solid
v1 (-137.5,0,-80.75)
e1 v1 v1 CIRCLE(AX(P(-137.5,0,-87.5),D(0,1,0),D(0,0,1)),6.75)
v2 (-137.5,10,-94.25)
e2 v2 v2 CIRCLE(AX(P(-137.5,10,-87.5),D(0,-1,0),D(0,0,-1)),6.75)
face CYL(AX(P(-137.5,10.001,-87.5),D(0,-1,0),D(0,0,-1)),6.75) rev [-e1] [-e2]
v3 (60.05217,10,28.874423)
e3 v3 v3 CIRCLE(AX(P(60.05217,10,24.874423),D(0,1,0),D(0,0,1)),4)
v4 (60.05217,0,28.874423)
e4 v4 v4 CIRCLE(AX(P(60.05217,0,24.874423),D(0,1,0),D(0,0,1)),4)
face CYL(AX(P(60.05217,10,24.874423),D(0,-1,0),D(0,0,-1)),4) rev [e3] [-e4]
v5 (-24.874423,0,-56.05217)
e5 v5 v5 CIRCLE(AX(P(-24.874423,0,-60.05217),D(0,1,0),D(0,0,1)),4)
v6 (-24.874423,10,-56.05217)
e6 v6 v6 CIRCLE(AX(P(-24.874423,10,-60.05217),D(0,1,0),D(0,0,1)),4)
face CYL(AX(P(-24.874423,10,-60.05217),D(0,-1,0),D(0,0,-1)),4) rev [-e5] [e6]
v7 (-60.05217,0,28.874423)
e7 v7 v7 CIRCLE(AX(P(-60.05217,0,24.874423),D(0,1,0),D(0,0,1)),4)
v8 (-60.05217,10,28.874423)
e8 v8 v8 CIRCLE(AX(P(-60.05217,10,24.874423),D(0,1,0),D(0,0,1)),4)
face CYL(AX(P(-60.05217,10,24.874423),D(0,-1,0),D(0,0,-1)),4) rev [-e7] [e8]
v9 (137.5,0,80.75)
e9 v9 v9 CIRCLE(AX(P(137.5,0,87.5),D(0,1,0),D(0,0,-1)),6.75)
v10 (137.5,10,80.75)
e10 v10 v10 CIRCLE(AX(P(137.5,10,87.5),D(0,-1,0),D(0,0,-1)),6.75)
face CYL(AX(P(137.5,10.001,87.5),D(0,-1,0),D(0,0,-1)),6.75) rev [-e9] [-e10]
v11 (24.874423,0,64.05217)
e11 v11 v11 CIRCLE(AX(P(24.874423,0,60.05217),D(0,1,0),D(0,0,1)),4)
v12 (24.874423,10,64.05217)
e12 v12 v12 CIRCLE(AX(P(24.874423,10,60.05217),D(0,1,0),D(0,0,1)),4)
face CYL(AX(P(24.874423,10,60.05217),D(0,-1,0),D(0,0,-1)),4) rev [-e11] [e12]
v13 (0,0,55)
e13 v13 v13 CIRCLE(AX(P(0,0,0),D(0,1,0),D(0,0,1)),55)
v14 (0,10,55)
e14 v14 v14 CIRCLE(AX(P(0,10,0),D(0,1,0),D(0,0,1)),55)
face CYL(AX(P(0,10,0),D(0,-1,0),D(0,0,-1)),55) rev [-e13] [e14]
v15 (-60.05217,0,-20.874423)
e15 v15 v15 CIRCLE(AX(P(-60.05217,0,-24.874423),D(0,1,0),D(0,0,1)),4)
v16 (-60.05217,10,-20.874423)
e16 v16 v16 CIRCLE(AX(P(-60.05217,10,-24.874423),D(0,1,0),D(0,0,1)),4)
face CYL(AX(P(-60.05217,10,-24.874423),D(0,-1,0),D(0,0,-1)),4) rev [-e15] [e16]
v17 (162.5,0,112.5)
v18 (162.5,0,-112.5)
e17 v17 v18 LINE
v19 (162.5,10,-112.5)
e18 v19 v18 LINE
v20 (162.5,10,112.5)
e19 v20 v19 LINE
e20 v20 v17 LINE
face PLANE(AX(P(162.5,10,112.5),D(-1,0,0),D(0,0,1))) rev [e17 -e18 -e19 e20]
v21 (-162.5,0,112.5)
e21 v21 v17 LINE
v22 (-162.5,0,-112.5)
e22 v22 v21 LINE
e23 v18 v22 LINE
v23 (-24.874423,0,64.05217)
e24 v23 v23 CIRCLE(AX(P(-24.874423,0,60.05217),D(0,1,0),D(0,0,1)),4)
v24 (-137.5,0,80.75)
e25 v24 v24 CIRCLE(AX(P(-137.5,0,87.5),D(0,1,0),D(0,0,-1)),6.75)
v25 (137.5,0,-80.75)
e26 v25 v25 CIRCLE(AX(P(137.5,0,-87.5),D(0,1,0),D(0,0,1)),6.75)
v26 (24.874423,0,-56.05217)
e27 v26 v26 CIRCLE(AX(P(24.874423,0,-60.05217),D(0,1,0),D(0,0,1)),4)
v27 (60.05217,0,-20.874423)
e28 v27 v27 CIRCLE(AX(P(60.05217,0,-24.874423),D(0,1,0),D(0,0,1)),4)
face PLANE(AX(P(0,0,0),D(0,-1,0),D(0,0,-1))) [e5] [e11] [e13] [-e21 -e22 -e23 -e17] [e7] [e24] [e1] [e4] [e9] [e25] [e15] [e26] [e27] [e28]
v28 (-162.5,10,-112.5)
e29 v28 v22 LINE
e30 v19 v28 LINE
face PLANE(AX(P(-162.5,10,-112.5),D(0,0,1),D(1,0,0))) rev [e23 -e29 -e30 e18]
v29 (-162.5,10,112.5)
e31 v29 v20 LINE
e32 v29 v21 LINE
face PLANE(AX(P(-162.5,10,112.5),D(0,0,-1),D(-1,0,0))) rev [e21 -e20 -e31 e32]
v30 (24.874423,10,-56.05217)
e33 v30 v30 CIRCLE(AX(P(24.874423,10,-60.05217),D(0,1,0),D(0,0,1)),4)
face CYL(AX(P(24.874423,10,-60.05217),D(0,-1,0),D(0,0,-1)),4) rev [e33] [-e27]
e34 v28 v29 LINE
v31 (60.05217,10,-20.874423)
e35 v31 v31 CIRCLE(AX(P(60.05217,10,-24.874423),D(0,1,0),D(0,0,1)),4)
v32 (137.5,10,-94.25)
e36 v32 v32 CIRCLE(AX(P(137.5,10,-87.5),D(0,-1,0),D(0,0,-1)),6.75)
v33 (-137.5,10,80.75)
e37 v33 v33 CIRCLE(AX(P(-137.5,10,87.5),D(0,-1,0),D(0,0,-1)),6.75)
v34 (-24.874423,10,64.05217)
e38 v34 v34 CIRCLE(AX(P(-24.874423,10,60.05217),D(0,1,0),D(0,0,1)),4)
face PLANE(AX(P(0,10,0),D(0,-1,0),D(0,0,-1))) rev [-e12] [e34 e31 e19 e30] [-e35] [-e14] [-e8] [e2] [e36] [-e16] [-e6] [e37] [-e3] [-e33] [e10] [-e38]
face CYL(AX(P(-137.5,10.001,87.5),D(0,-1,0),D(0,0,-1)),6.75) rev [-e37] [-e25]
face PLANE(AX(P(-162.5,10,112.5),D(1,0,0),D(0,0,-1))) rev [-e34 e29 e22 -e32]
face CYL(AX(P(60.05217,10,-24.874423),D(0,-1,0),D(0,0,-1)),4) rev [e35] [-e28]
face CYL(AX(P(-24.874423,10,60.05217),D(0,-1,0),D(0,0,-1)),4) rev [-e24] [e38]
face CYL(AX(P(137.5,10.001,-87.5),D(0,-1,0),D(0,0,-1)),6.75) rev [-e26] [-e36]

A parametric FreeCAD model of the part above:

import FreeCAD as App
import Part
import Sketcher

V = App.Vector
Q = App.Units.Quantity


def add_polygon(sketch, points):
    """Adds a closed chain of lines whose ends are joined by coincident constraints."""
    first, n = sketch.GeometryCount, len(points)
    for a, b in zip(points, points[1:] + points[:1]):
        sketch.addGeometry(Part.LineSegment(App.Vector(*a, 0), App.Vector(*b, 0)), False)
    for i in range(n):
        sketch.addConstraint(Sketcher.Constraint("Coincident", first + i, 2, first + (i + 1) % n, 1))

doc = App.newDocument("Part")
params = doc.addObject("Spreadsheet::Sheet", "Params")
for row, (alias, value) in enumerate([
    ("sketch1_diameter", "110 mm"),
    ("sketch1_width", "325 mm"),
    ("sketch1_height", "225 mm"),
    ("pad1_length", "10 mm"),
    ("sketch2_diameter", "8 mm"),
    ("pocket1_length", "10 mm"),
    ("sketch3_diameter", "13.5 mm"),
    ("sketch4_diameter", "13.5 mm"),
    ("sketch5_diameter", "13.5 mm"),
    ("sketch6_diameter", "13.5 mm"),
], start=1):
    params.set(f"A{row}", alias)
    params.set(f"B{row}", "=" + value)
    params.setAlias(f"B{row}", alias)

body = doc.addObject("PartDesign::Body", "Body")

# Sketch on XZ plane
sketch1 = doc.addObject("Sketcher::SketchObject", "Sketch")
body.addObject(sketch1)
sketch1.AttachmentSupport = (doc.XZ_Plane, [""])
sketch1.MapMode = "FlatFace"
add_polygon(sketch1, [(-162.5, -112.5), (-162.5, 112.5), (162.5, 112.5), (162.5, -112.5)])  # lines 0-3
sketch1.addGeometry(Part.Circle(V(0, 0, 0), V(0, 0, 1), 55), False)  # 4
sketch1.addConstraint([
    Sketcher.Constraint("Vertical", 0),
    Sketcher.Constraint("Horizontal", 1),
    Sketcher.Constraint("Vertical", 2),
    Sketcher.Constraint("Horizontal", 3),
    Sketcher.Constraint("Coincident", 4, 3, -1, 1),
    Sketcher.Constraint("Symmetric", 0, 2, 2, 2, -1, 1),
    Sketcher.Constraint("Diameter", 4, Q("110 mm")),
    Sketcher.Constraint("DistanceX", 1, 1, 1, 2, Q("325 mm")),
    Sketcher.Constraint("DistanceY", 0, 1, 0, 2, Q("225 mm")),
])
sketch1.setExpression("Constraints[10]", "Params.sketch1_diameter")
sketch1.setExpression("Constraints[11]", "Params.sketch1_width")
sketch1.setExpression("Constraints[12]", "Params.sketch1_height")
pad1 = doc.addObject("PartDesign::Pad", "Pad")
body.addObject(pad1)
pad1.Profile = sketch1
pad1.setExpression("Length", "Params.pad1_length")
pad1.Reversed = True

# Sketch on XZ plane
sketch2 = doc.addObject("Sketcher::SketchObject", "Sketch001")
body.addObject(sketch2)
sketch2.AttachmentSupport = (doc.XZ_Plane, [""])
sketch2.MapMode = "FlatFace"
sketch2.addGeometry([
    Part.Circle(V(-24.874423, 60.05217, 0), V(0, 0, 1), 4),  # 0
    Part.Circle(V(-60.05217, 24.874423, 0), V(0, 0, 1), 4),  # 1
    Part.Circle(V(-60.05217, -24.874423, 0), V(0, 0, 1), 4),  # 2
    Part.Circle(V(-24.874423, -60.05217, 0), V(0, 0, 1), 4),  # 3
    Part.Circle(V(24.874423, -60.05217, 0), V(0, 0, 1), 4),  # 4
    Part.Circle(V(60.05217, -24.874423, 0), V(0, 0, 1), 4),  # 5
    Part.Circle(V(60.05217, 24.874423, 0), V(0, 0, 1), 4),  # 6
    Part.Circle(V(24.874423, 60.05217, 0), V(0, 0, 1), 4),  # 7
], False)
sketch2.addConstraint([
    Sketcher.Constraint("Equal", 0, 1),
    Sketcher.Constraint("Equal", 1, 2),
    Sketcher.Constraint("Equal", 2, 3),
    Sketcher.Constraint("Equal", 3, 4),
    Sketcher.Constraint("Equal", 4, 5),
    Sketcher.Constraint("Equal", 5, 6),
    Sketcher.Constraint("Equal", 6, 7),
    Sketcher.Constraint("Symmetric", 0, 3, 4, 3, -1, 1),
    Sketcher.Constraint("Symmetric", 1, 3, 5, 3, -1, 1),
    Sketcher.Constraint("Symmetric", 2, 3, 6, 3, -1, 1),
    Sketcher.Constraint("Symmetric", 3, 3, 7, 3, -1, 1),
    Sketcher.Constraint("Symmetric", 3, 3, 4, 3, -2),
    Sketcher.Constraint("Symmetric", 2, 3, 5, 3, -2),
    Sketcher.Constraint("Diameter", 0, Q("8 mm")),
    Sketcher.Constraint("DistanceY", -1, 1, 0, 3, Q("60.05217 mm")),
    Sketcher.Constraint("DistanceX", 1, 3, -1, 1, Q("60.05217 mm")),
    Sketcher.Constraint("DistanceX", 0, 3, -1, 1, Q("24.874423 mm")),
    Sketcher.Constraint("DistanceY", -1, 1, 1, 3, Q("24.874423 mm")),
])
sketch2.setExpression("Constraints[13]", "Params.sketch2_diameter")
pocket1 = doc.addObject("PartDesign::Pocket", "Pocket")
body.addObject(pocket1)
pocket1.Profile = sketch2
pocket1.setExpression("Length", "Params.pocket1_length")

# Sketch on XZ plane
sketch3 = doc.addObject("Sketcher::SketchObject", "Sketch002")
body.addObject(sketch3)
sketch3.AttachmentSupport = (doc.XZ_Plane, [""])
sketch3.MapMode = "FlatFace"
sketch3.addGeometry(Part.Circle(V(137.5, -87.5, 0), V(0, 0, 1), 6.75), False)
sketch3.addConstraint([
    Sketcher.Constraint("Diameter", 0, Q("13.5 mm")),
    Sketcher.Constraint("DistanceX", -1, 1, 0, 3, Q("137.5 mm")),
    Sketcher.Constraint("DistanceY", 0, 3, -1, 1, Q("87.5 mm")),
])
sketch3.setExpression("Constraints[0]", "Params.sketch3_diameter")
pocket2 = doc.addObject("PartDesign::Pocket", "Pocket001")
body.addObject(pocket2)
pocket2.Profile = sketch3
pocket2.Type = "UpToFirst"

# Sketch on XZ plane
sketch4 = doc.addObject("Sketcher::SketchObject", "Sketch003")
body.addObject(sketch4)
sketch4.AttachmentSupport = (doc.XZ_Plane, [""])
sketch4.MapMode = "FlatFace"
sketch4.addGeometry(Part.Circle(V(-137.5, -87.5, 0), V(0, 0, 1), 6.75), False)
sketch4.addConstraint([
    Sketcher.Constraint("Diameter", 0, Q("13.5 mm")),
    Sketcher.Constraint("DistanceX", 0, 3, -1, 1, Q("137.5 mm")),
    Sketcher.Constraint("DistanceY", 0, 3, -1, 1, Q("87.5 mm")),
])
sketch4.setExpression("Constraints[0]", "Params.sketch4_diameter")
pocket3 = doc.addObject("PartDesign::Pocket", "Pocket002")
body.addObject(pocket3)
pocket3.Profile = sketch4
pocket3.Type = "UpToFirst"

# Sketch on XZ plane
sketch5 = doc.addObject("Sketcher::SketchObject", "Sketch004")
body.addObject(sketch5)
sketch5.AttachmentSupport = (doc.XZ_Plane, [""])
sketch5.MapMode = "FlatFace"
sketch5.addGeometry(Part.Circle(V(-137.5, 87.5, 0), V(0, 0, 1), 6.75), False)
sketch5.addConstraint([
    Sketcher.Constraint("Diameter", 0, Q("13.5 mm")),
    Sketcher.Constraint("DistanceX", 0, 3, -1, 1, Q("137.5 mm")),
    Sketcher.Constraint("DistanceY", -1, 1, 0, 3, Q("87.5 mm")),
])
sketch5.setExpression("Constraints[0]", "Params.sketch5_diameter")
pocket4 = doc.addObject("PartDesign::Pocket", "Pocket003")
body.addObject(pocket4)
pocket4.Profile = sketch5
pocket4.Type = "UpToFirst"

# Sketch on XZ plane
sketch6 = doc.addObject("Sketcher::SketchObject", "Sketch005")
body.addObject(sketch6)
sketch6.AttachmentSupport = (doc.XZ_Plane, [""])
sketch6.MapMode = "FlatFace"
sketch6.addGeometry(Part.Circle(V(137.5, 87.5, 0), V(0, 0, 1), 6.75), False)
sketch6.addConstraint([
    Sketcher.Constraint("Diameter", 0, Q("13.5 mm")),
    Sketcher.Constraint("DistanceX", -1, 1, 0, 3, Q("137.5 mm")),
    Sketcher.Constraint("DistanceY", -1, 1, 0, 3, Q("87.5 mm")),
])
sketch6.setExpression("Constraints[0]", "Params.sketch6_diameter")
pocket5 = doc.addObject("PartDesign::Pocket", "Pocket004")
body.addObject(pocket5)
pocket5.Profile = sketch6
pocket5.Type = "UpToFirst"

doc.recompute()
